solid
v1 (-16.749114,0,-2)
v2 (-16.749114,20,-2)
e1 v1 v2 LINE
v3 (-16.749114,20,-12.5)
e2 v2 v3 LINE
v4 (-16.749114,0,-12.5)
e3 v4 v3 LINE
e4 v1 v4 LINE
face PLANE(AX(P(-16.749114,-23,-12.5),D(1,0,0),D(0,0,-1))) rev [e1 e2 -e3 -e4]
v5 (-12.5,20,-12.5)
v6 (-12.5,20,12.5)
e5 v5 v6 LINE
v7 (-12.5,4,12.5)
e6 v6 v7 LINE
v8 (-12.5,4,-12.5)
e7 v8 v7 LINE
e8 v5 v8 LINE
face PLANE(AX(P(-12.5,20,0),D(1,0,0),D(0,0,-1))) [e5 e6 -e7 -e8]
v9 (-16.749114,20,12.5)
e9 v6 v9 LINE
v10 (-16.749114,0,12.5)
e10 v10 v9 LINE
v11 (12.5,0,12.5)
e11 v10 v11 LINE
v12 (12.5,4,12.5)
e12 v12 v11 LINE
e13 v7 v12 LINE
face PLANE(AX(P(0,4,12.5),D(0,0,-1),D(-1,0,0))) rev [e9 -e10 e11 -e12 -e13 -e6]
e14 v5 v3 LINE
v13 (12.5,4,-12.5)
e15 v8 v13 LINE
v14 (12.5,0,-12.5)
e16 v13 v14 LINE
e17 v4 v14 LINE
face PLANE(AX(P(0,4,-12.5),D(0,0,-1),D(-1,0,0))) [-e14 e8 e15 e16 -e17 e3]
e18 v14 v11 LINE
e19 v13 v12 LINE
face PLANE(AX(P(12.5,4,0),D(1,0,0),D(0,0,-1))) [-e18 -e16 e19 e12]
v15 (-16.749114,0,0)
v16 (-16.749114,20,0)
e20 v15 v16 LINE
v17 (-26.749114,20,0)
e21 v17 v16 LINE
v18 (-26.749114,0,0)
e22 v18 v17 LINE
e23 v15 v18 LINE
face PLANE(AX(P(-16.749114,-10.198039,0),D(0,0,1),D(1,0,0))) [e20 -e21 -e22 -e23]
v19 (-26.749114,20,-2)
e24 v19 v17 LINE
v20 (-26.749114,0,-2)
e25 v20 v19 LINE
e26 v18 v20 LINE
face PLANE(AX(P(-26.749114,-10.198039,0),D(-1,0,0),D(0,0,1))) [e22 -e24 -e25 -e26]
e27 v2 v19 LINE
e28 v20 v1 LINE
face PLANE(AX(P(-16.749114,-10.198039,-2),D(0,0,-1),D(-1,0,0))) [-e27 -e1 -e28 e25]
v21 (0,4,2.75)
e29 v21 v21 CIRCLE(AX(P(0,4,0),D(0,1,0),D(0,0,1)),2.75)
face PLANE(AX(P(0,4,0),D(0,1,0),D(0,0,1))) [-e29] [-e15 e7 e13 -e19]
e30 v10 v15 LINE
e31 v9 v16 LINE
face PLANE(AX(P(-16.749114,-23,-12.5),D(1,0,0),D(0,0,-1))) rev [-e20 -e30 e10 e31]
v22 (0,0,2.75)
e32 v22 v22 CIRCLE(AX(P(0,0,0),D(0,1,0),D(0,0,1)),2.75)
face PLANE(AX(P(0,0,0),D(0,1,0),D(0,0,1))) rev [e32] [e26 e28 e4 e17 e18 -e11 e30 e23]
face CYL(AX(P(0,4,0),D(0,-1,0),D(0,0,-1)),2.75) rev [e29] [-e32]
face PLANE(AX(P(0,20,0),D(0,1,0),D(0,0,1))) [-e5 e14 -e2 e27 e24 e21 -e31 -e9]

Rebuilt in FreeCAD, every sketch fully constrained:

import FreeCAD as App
import Part
import Sketcher
from FreeCAD import Vector
Q = App.Units.Quantity

doc = App.newDocument("Part")
body = doc.addObject("PartDesign::Body", "Body")

sketch1 = body.newObject("Sketcher::SketchObject", "Sketch")
sketch1.AttachmentSupport = (doc.getObject("XZ_Plane"), [""])
sketch1.MapMode = "FlatFace"
sketch1.addGeometry(Part.LineSegment(Vector(-12.5, -12.5, 0), Vector(-12.5, 12.5, 0)), False)
sketch1.addGeometry(Part.LineSegment(Vector(-12.5, 12.5, 0), Vector(12.5, 12.5, 0)), False)
sketch1.addGeometry(Part.LineSegment(Vector(12.5, 12.5, 0), Vector(12.5, -12.5, 0)), False)
sketch1.addGeometry(Part.LineSegment(Vector(12.5, -12.5, 0), Vector(-12.5, -12.5, 0)), False)
sketch1.addGeometry(Part.Circle(Vector(0, 0, 0), Vector(0, 0, 1), 2.8), False)
sketch1.addConstraint(Sketcher.Constraint("Coincident", 0, 2, 1, 1))
sketch1.addConstraint(Sketcher.Constraint("Coincident", 1, 2, 2, 1))
sketch1.addConstraint(Sketcher.Constraint("Coincident", 2, 2, 3, 1))
sketch1.addConstraint(Sketcher.Constraint("Coincident", 3, 2, 0, 1))
sketch1.addConstraint(Sketcher.Constraint("Vertical", 0))
sketch1.addConstraint(Sketcher.Constraint("Horizontal", 1))
sketch1.addConstraint(Sketcher.Constraint("Vertical", 2))
sketch1.addConstraint(Sketcher.Constraint("Horizontal", 3))
sketch1.addConstraint(Sketcher.Constraint("Coincident", 4, 3, -1, 1))
sketch1.addConstraint(Sketcher.Constraint("Symmetric", 0, 2, 2, 2, -1, 1))
sketch1.addConstraint(Sketcher.Constraint("Equal", 3, 0))
sketch1.addConstraint(Sketcher.Constraint("Diameter", 4, Q("5.5 mm")))
sketch1.addConstraint(Sketcher.Constraint("DistanceX", 1, 1, 1, 2, Q("25 mm")))
pad1 = body.newObject("PartDesign::Pad", "Pad")
pad1.Profile = sketch1
pad1.Length = 4
pad1.Reversed = True

sketch2 = body.newObject("Sketcher::SketchObject", "Sketch001")
sketch2.AttachmentSupport = (doc.getObject("XZ_Plane"), [""])
sketch2.MapMode = "FlatFace"
sketch2.addGeometry(Part.LineSegment(Vector(-28, -12, 0), Vector(-28, 12, 0)), False)
sketch2.addGeometry(Part.LineSegment(Vector(-28, 12, 0), Vector(-12, 12, 0)), False)
sketch2.addGeometry(Part.LineSegment(Vector(-12, 12, 0), Vector(-12, -12, 0)), False)
sketch2.addGeometry(Part.LineSegment(Vector(-12, -12, 0), Vector(-28, -12, 0)), False)
sketch2.addConstraint(Sketcher.Constraint("Coincident", 0, 2, 1, 1))
sketch2.addConstraint(Sketcher.Constraint("Coincident", 1, 2, 2, 1))
sketch2.addConstraint(Sketcher.Constraint("Coincident", 2, 2, 3, 1))
sketch2.addConstraint(Sketcher.Constraint("Coincident", 3, 2, 0, 1))
sketch2.addConstraint(Sketcher.Constraint("Vertical", 0))
sketch2.addConstraint(Sketcher.Constraint("Horizontal", 1))
sketch2.addConstraint(Sketcher.Constraint("Vertical", 2))
sketch2.addConstraint(Sketcher.Constraint("Horizontal", 3))
sketch2.addConstraint(Sketcher.Constraint("DistanceX", 1, 1, 1, 2, Q("15 mm")))
sketch2.addConstraint(Sketcher.Constraint("DistanceY", 0, 1, 0, 2, Q("25 mm")))
sketch2.addConstraint(Sketcher.Constraint("DistanceX", 0, 2, -1, 1, Q("27.5 mm")))
sketch2.addConstraint(Sketcher.Constraint("DistanceY", -1, 1, 0, 2, Q("12.5 mm")))
pad2 = body.newObject("PartDesign::Pad", "Pad001")
pad2.Profile = sketch2
pad2.Length = 20
pad2.Reversed = True

sketch3 = body.newObject("Sketcher::SketchObject", "Sketch002")
sketch3.AttachmentSupport = (doc.getObject("XZ_Plane"), [""])
sketch3.MapMode = "FlatFace"
sketch3.AttachmentOffset = App.Placement(Vector(0, 0, -20), App.Rotation())
sketch3.addGeometry(Part.LineSegment(Vector(-28, -12, 0), Vector(-28, 12, 0)), False)
sketch3.addGeometry(Part.LineSegment(Vector(-28, 12, 0), Vector(-17, 12, 0)), False)
sketch3.addGeometry(Part.LineSegment(Vector(-17, 12, 0), Vector(-17, -12, 0)), False)
sketch3.addGeometry(Part.LineSegment(Vector(-17, -12, 0), Vector(-28, -12, 0)), False)
sketch3.addConstraint(Sketcher.Constraint("Coincident", 0, 2, 1, 1))
sketch3.addConstraint(Sketcher.Constraint("Coincident", 1, 2, 2, 1))
sketch3.addConstraint(Sketcher.Constraint("Coincident", 2, 2, 3, 1))
sketch3.addConstraint(Sketcher.Constraint("Coincident", 3, 2, 0, 1))
sketch3.addConstraint(Sketcher.Constraint("Vertical", 0))
sketch3.addConstraint(Sketcher.Constraint("Horizontal", 1))
sketch3.addConstraint(Sketcher.Constraint("Vertical", 2))
sketch3.addConstraint(Sketcher.Constraint("Horizontal", 3))
sketch3.addConstraint(Sketcher.Constraint("DistanceY", 0, 1, 0, 2, Q("25 mm")))
sketch3.addConstraint(Sketcher.Constraint("DistanceX", 0, 2, -1, 1, Q("27.5 mm")))
sketch3.addConstraint(Sketcher.Constraint("DistanceY", -1, 1, 0, 2, Q("12.5 mm")))
sketch3.addConstraint(Sketcher.Constraint("DistanceX", 1, 1, 1, 2, Q("10.750886 mm")))
pocket1 = body.newObject("PartDesign::Pocket", "Pocket")
pocket1.Profile = sketch3
pocket1.Length = 43
pocket1.Reversed = True

sketch4 = body.newObject("Sketcher::SketchObject", "Sketch003")
sketch4.AttachmentSupport = (doc.getObject("XZ_Plane"), [""])
sketch4.MapMode = "FlatFace"
sketch4.AttachmentOffset = App.Placement(Vector(0, 0, -20), App.Rotation())
sketch4.addGeometry(Part.LineSegment(Vector(-26.7, -2, 0), Vector(-26.7, 0, 0)), False)
sketch4.addGeometry(Part.LineSegment(Vector(-26.7, 0, 0), Vector(-16.7, 0, 0)), False)
sketch4.addGeometry(Part.LineSegment(Vector(-16.7, 0, 0), Vector(-16.7, -2, 0)), False)
sketch4.addGeometry(Part.LineSegment(Vector(-16.7, -2, 0), Vector(-26.7, -2, 0)), False)
sketch4.addConstraint(Sketcher.Constraint("Coincident", 0, 2, 1, 1))
sketch4.addConstraint(Sketcher.Constraint("Coincident", 1, 2, 2, 1))
sketch4.addConstraint(Sketcher.Constraint("Coincident", 2, 2, 3, 1))
sketch4.addConstraint(Sketcher.Constraint("Coincident", 3, 2, 0, 1))
sketch4.addConstraint(Sketcher.Constraint("Vertical", 0))
sketch4.addConstraint(Sketcher.Constraint("Horizontal", 1))
sketch4.addConstraint(Sketcher.Constraint("Vertical", 2))
sketch4.addConstraint(Sketcher.Constraint("Horizontal", 3))
sketch4.addConstraint(Sketcher.Constraint("PointOnObject", 0, 2, -1))
sketch4.addConstraint(Sketcher.Constraint("DistanceX", 1, 1, 1, 2, Q("10 mm")))
sketch4.addConstraint(Sketcher.Constraint("DistanceY", 0, 1, 0, 2, Q("2 mm")))
sketch4.addConstraint(Sketcher.Constraint("DistanceX", 0, 2, -1, 1, Q("26.749114 mm")))
pad3 = body.newObject("PartDesign::Pad", "Pad002")
pad3.Profile = sketch4
pad3.Length = 20

doc.recompute()
